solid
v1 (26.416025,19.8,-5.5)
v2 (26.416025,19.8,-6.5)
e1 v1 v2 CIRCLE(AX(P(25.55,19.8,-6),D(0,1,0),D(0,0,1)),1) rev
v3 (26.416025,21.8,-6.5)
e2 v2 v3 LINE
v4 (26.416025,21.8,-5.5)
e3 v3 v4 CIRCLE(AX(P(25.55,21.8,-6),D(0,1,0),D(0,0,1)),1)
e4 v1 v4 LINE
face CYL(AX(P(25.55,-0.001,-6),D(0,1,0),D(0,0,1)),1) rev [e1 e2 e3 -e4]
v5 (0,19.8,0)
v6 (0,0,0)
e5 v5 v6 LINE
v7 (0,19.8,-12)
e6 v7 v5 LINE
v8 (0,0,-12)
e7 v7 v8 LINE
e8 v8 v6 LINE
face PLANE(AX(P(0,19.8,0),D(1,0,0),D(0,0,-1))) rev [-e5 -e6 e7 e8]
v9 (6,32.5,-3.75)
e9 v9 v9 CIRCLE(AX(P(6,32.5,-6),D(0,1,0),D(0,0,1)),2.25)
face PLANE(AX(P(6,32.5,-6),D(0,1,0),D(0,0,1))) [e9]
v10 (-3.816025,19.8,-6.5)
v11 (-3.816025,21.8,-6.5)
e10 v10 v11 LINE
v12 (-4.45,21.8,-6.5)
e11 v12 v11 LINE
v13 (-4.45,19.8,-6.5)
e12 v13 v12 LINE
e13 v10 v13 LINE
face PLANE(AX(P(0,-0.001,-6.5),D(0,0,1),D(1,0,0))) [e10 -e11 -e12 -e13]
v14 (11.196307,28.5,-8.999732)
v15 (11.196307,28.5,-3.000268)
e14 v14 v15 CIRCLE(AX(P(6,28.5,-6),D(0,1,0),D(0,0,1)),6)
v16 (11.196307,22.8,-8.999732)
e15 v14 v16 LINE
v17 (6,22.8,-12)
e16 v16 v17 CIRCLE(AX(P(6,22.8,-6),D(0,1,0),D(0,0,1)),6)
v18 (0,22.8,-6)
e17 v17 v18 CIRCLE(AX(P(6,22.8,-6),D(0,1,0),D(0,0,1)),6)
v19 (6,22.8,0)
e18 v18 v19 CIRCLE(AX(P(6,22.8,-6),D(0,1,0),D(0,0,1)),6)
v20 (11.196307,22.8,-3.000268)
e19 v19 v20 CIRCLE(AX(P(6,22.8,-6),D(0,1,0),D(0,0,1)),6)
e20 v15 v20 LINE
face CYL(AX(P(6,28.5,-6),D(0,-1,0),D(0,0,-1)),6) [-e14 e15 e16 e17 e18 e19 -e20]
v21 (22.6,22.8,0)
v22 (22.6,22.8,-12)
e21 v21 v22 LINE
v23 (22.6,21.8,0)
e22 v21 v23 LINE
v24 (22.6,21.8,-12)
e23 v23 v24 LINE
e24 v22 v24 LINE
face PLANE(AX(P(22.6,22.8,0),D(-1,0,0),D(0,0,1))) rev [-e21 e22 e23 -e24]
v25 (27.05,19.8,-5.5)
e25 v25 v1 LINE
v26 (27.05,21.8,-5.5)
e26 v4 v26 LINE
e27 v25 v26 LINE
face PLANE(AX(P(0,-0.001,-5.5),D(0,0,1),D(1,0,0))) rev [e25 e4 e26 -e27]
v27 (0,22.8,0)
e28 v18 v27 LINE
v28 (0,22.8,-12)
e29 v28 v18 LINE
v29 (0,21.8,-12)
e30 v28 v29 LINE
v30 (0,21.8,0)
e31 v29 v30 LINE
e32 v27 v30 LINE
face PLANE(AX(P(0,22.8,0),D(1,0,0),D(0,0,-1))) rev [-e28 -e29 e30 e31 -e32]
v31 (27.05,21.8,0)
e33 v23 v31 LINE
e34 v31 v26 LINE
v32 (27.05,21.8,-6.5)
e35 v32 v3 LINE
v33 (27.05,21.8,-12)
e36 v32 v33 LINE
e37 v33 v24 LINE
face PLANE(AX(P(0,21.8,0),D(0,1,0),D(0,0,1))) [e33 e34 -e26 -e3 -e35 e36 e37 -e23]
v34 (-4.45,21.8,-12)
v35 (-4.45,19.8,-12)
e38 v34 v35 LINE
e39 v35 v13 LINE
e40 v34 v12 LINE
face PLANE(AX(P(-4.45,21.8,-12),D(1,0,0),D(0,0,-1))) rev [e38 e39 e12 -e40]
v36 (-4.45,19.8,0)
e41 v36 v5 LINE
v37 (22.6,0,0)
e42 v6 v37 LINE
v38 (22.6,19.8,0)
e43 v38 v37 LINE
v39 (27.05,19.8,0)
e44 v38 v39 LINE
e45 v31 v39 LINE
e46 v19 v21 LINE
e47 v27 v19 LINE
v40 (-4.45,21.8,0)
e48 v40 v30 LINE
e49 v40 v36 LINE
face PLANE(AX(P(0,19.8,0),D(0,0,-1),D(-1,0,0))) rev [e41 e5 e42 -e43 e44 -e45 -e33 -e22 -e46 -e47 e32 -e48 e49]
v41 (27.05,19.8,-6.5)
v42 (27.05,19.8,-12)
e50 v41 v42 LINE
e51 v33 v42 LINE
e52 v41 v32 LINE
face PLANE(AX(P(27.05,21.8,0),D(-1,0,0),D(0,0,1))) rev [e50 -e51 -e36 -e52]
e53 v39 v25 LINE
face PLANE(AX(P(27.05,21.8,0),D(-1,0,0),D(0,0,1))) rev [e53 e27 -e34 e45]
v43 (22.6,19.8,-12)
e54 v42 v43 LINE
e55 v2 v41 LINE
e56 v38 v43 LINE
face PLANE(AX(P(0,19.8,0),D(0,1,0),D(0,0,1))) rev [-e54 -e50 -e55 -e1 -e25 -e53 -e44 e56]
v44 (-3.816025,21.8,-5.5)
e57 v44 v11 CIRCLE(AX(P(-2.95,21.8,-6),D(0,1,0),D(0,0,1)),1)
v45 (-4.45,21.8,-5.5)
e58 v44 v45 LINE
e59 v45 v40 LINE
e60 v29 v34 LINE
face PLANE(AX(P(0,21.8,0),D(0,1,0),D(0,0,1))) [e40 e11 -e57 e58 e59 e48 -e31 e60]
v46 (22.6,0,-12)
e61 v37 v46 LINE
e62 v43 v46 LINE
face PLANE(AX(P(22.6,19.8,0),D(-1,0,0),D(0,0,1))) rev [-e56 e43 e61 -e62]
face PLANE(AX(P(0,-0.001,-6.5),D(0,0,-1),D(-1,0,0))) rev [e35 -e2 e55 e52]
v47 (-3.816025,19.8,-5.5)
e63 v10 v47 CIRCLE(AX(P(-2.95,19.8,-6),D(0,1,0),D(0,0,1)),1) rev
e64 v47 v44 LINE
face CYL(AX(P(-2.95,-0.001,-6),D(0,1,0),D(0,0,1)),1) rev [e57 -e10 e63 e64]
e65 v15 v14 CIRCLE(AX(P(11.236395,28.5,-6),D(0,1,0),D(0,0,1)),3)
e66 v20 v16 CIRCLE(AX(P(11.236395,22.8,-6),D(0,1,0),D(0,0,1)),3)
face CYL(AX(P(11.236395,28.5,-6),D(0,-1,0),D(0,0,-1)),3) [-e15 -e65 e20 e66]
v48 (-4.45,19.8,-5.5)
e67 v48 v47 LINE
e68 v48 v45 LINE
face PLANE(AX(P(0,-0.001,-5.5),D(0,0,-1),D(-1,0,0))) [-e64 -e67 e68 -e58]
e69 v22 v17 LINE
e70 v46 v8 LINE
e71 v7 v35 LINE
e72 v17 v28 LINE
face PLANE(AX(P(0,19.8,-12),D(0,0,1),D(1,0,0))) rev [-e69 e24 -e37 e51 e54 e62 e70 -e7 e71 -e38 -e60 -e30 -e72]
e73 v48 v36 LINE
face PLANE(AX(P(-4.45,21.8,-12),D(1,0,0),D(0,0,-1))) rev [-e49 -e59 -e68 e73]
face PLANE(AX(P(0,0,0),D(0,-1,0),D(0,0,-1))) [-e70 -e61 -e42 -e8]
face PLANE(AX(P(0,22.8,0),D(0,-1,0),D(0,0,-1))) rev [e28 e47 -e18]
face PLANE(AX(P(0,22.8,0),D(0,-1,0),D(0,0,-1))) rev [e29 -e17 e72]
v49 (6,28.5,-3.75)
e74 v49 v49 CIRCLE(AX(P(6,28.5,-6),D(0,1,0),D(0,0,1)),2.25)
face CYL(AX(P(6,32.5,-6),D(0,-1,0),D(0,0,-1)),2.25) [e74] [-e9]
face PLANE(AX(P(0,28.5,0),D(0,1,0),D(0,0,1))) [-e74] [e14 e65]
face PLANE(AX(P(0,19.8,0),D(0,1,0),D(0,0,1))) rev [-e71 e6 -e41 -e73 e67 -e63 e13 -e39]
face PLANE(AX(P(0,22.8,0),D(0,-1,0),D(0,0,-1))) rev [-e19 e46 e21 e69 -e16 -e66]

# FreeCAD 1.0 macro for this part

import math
import FreeCAD as App
import Part
import Sketcher
Q = App.Units.Quantity

doc = App.newDocument("Part")
params = doc.addObject("Spreadsheet::Sheet", "Params")
for row, (alias, value) in enumerate([
    ("sketch1_height", "12 mm"),
    ("sketch1_width", "22.6 mm"),
    ("pad1_length", "19.8 mm"),
    ("sketch2_height", "12 mm"),
    ("sketch2_width", "31.5 mm"),
    ("pad2_length", "2 mm"),
    ("sketch3_height", "12 mm"),
    ("sketch3_width", "22.6 mm"),
    ("pad3_length", "1 mm"),
    ("sketch4_radius", "6 mm"),
    ("sketch4_radius2", "3 mm"),
    ("pad4_length", "5.7 mm"),
    ("sketch5_diameter", "4.5 mm"),
    ("pad5_length", "4 mm"),
    ("sketch6_radius", "1 mm"),
    ("sketch6_width", "0.5 mm"),
    ("sketch7_radius", "1 mm"),
    ("sketch7_width", "0.5 mm"),
    ("sketch8_radius", "1 mm"),
    ("sketch8_height", "0.5 mm"),
    ("sketch9_radius", "1 mm"),
    ("sketch9_height", "0.5 mm"),
    ("sketch10_radius", "1 mm"),
    ("sketch10_height", "0.5 mm"),
    ("sketch11_radius", "1 mm"),
    ("sketch11_height", "0.5 mm"),
    ("sketch12_radius", "1 mm"),
    ("sketch12_height", "0.5 mm"),
    ("pocket7_length", "2 mm"),
    ("sketch13_radius", "1 mm"),
    ("sketch13_height", "0.5 mm"),
    ("pocket8_length", "2 mm"),
    ("sketch14_radius", "1 mm"),
    ("sketch14_height", "0.5 mm"),
    ("pocket9_length", "2 mm"),
    ("sketch15_radius", "1 mm"),
    ("sketch15_height", "0.5 mm"),
    ("pocket10_length", "2 mm"),
    ("sketch16_radius", "1 mm"),
    ("sketch16_height", "0.5 mm"),
    ("sketch17_radius", "1 mm"),
    ("sketch17_height", "0.5 mm"),
    ("sketch18_radius", "1 mm"),
    ("sketch18_height", "0.5 mm"),
    ("pocket13_length", "2 mm"),
    ("sketch19_radius", "1 mm"),
    ("sketch19_height", "0.5 mm"),
    ("pocket14_length", "2 mm"),
    ("sketch20_radius", "1 mm"),
    ("sketch20_height", "0.5 mm"),
    ("sketch21_radius", "1 mm"),
    ("sketch21_height", "0.5 mm"),
    ("sketch22_radius", "1 mm"),
    ("sketch22_height", "0.5 mm"),
    ("pocket17_length", "2 mm"),
    ("sketch23_radius", "1 mm"),
    ("sketch23_height", "0.5 mm"),
    ("pocket18_length", "2 mm"),
    ("sketch24_radius", "1 mm"),
    ("sketch24_width", "0.5 mm"),
    ("sketch25_radius", "1 mm"),
    ("sketch25_width", "0.5 mm"),
], start=1):
    params.set(f"A{row}", alias)
    params.set(f"B{row}", "=" + value)
    params.setAlias(f"B{row}", alias)

body = doc.addObject("PartDesign::Body", "Body")
body.AllowCompound = True

# Sketch on XZ plane
sketch1 = body.newObject("Sketcher::SketchObject", "Sketch")
sketch1.AttachmentSupport = (doc.getObject("XZ_Plane"), [""])
sketch1.MapMode = "FlatFace"
sketch1.addGeometry(Part.LineSegment(App.Vector(0, -12, 0), App.Vector(0, 0, 0)), False)
sketch1.addGeometry(Part.LineSegment(App.Vector(0, 0, 0), App.Vector(23, 0, 0)), False)
sketch1.addGeometry(Part.LineSegment(App.Vector(23, 0, 0), App.Vector(23, -12, 0)), False)
sketch1.addGeometry(Part.LineSegment(App.Vector(23, -12, 0), App.Vector(0, -12, 0)), False)
sketch1.addConstraint(Sketcher.Constraint("Coincident", 0, 2, 1, 1))
sketch1.addConstraint(Sketcher.Constraint("Coincident", 1, 2, 2, 1))
sketch1.addConstraint(Sketcher.Constraint("Coincident", 2, 2, 3, 1))
sketch1.addConstraint(Sketcher.Constraint("Coincident", 3, 2, 0, 1))
sketch1.addConstraint(Sketcher.Constraint("Vertical", 0))
sketch1.addConstraint(Sketcher.Constraint("Horizontal", 1))
sketch1.addConstraint(Sketcher.Constraint("Vertical", 2))
sketch1.addConstraint(Sketcher.Constraint("Horizontal", 3))
sketch1.addConstraint(Sketcher.Constraint("Coincident", 0, 2, -1, 1))
sketch1.addConstraint(Sketcher.Constraint("DistanceY", 0, 1, 0, 2, Q("12 mm")))
sketch1.addConstraint(Sketcher.Constraint("DistanceX", 1, 1, 1, 2, Q("22.6 mm")))
sketch1.setExpression("Constraints[9]", "Params.sketch1_height")
sketch1.setExpression("Constraints[10]", "Params.sketch1_width")
pad1 = body.newObject("PartDesign::Pad", "Pad")
pad1.Profile = sketch1
pad1.setExpression("Length", "Params.pad1_length")
pad1.Reversed = True

# Sketch on XZ plane
sketch2 = body.newObject("Sketcher::SketchObject", "Sketch001")
sketch2.AttachmentSupport = (doc.getObject("XZ_Plane"), [""])
sketch2.MapMode = "FlatFace"
sketch2.AttachmentOffset = App.Placement(App.Vector(0, 0, -19.8), App.Rotation())
sketch2.addGeometry(Part.LineSegment(App.Vector(-4, -12, 0), App.Vector(-4, 0, 0)), False)
sketch2.addGeometry(Part.LineSegment(App.Vector(-4, 0, 0), App.Vector(27, 0, 0)), False)
sketch2.addGeometry(Part.LineSegment(App.Vector(27, 0, 0), App.Vector(27, -12, 0)), False)
sketch2.addGeometry(Part.LineSegment(App.Vector(27, -12, 0), App.Vector(-4, -12, 0)), False)
sketch2.addConstraint(Sketcher.Constraint("Coincident", 0, 2, 1, 1))
sketch2.addConstraint(Sketcher.Constraint("Coincident", 1, 2, 2, 1))
sketch2.addConstraint(Sketcher.Constraint("Coincident", 2, 2, 3, 1))
sketch2.addConstraint(Sketcher.Constraint("Coincident", 3, 2, 0, 1))
sketch2.addConstraint(Sketcher.Constraint("Vertical", 0))
sketch2.addConstraint(Sketcher.Constraint("Horizontal", 1))
sketch2.addConstraint(Sketcher.Constraint("Vertical", 2))
sketch2.addConstraint(Sketcher.Constraint("Horizontal", 3))
sketch2.addConstraint(Sketcher.Constraint("PointOnObject", 0, 2, -1))
sketch2.addConstraint(Sketcher.Constraint("DistanceY", 0, 1, 0, 2, Q("12 mm")))
sketch2.addConstraint(Sketcher.Constraint("DistanceX", 1, 1, 1, 2, Q("31.5 mm")))
sketch2.addConstraint(Sketcher.Constraint("DistanceX", 0, 2, -1, 1, Q("4.45 mm")))
sketch2.setExpression("Constraints[9]", "Params.sketch2_height")
sketch2.setExpression("Constraints[10]", "Params.sketch2_width")
pad2 = body.newObject("PartDesign::Pad", "Pad001")
pad2.Profile = sketch2
pad2.setExpression("Length", "Params.pad2_length")
pad2.Reversed = True

# Sketch on XZ plane
sketch3 = body.newObject("Sketcher::SketchObject", "Sketch002")
sketch3.AttachmentSupport = (doc.getObject("XZ_Plane"), [""])
sketch3.MapMode = "FlatFace"
sketch3.AttachmentOffset = App.Placement(App.Vector(0, 0, -21.8), App.Rotation())
sketch3.addGeometry(Part.LineSegment(App.Vector(0, -12, 0), App.Vector(0, 0, 0)), False)
sketch3.addGeometry(Part.LineSegment(App.Vector(0, 0, 0), App.Vector(23, 0, 0)), False)
sketch3.addGeometry(Part.LineSegment(App.Vector(23, 0, 0), App.Vector(23, -12, 0)), False)
sketch3.addGeometry(Part.LineSegment(App.Vector(23, -12, 0), App.Vector(0, -12, 0)), False)
sketch3.addConstraint(Sketcher.Constraint("Coincident", 0, 2, 1, 1))
sketch3.addConstraint(Sketcher.Constraint("Coincident", 1, 2, 2, 1))
sketch3.addConstraint(Sketcher.Constraint("Coincident", 2, 2, 3, 1))
sketch3.addConstraint(Sketcher.Constraint("Coincident", 3, 2, 0, 1))
sketch3.addConstraint(Sketcher.Constraint("Vertical", 0))
sketch3.addConstraint(Sketcher.Constraint("Horizontal", 1))
sketch3.addConstraint(Sketcher.Constraint("Vertical", 2))
sketch3.addConstraint(Sketcher.Constraint("Horizontal", 3))
sketch3.addConstraint(Sketcher.Constraint("Coincident", 0, 2, -1, 1))
sketch3.addConstraint(Sketcher.Constraint("DistanceY", 0, 1, 0, 2, Q("12 mm")))
sketch3.addConstraint(Sketcher.Constraint("DistanceX", 1, 1, 1, 2, Q("22.6 mm")))
sketch3.setExpression("Constraints[9]", "Params.sketch3_height")
sketch3.setExpression("Constraints[10]", "Params.sketch3_width")
pad3 = body.newObject("PartDesign::Pad", "Pad002")
pad3.Profile = sketch3
pad3.setExpression("Length", "Params.pad3_length")
pad3.Reversed = True

# Sketch on XZ plane
sketch4 = body.newObject("Sketcher::SketchObject", "Sketch003")
sketch4.AttachmentSupport = (doc.getObject("XZ_Plane"), [""])
sketch4.MapMode = "FlatFace"
sketch4.AttachmentOffset = App.Placement(App.Vector(0, 0, -22.8), App.Rotation())
sketch4.addGeometry(Part.ArcOfCircle(Part.Circle(App.Vector(6, -6, 0), App.Vector(0, 0, 1), 6), math.radians(30), math.radians(330)), False)
sketch4.addGeometry(Part.ArcOfCircle(Part.Circle(App.Vector(11.2, -6, 0), App.Vector(0, 0, 1), 3), math.radians(-91), math.radians(91)), False)
sketch4.addConstraint(Sketcher.Constraint("Coincident", 0, 1, 1, 2))
sketch4.addConstraint(Sketcher.Constraint("Coincident", 1, 1, 0, 2))
sketch4.addConstraint(Sketcher.Constraint("Horizontal", 0, 3, 1, 3))
sketch4.addConstraint(Sketcher.Constraint("Radius", 0, Q("6 mm")))
sketch4.addConstraint(Sketcher.Constraint("Radius", 1, Q("3 mm")))
sketch4.addConstraint(Sketcher.Constraint("DistanceX", -1, 1, 0, 3, Q("6 mm")))
sketch4.addConstraint(Sketcher.Constraint("DistanceY", 0, 3, -1, 1, Q("6 mm")))
sketch4.addConstraint(Sketcher.Constraint("DistanceX", 0, 1, 1, 3, Q("0.040088 mm")))
sketch4.setExpression("Constraints[3]", "Params.sketch4_radius")
sketch4.setExpression("Constraints[4]", "Params.sketch4_radius2")
pad4 = body.newObject("PartDesign::Pad", "Pad003")
pad4.Profile = sketch4
pad4.setExpression("Length", "Params.pad4_length")
pad4.Reversed = True

# Sketch on XZ plane
sketch5 = body.newObject("Sketcher::SketchObject", "Sketch004")
sketch5.AttachmentSupport = (doc.getObject("XZ_Plane"), [""])
sketch5.MapMode = "FlatFace"
sketch5.AttachmentOffset = App.Placement(App.Vector(0, 0, -28.5), App.Rotation())
sketch5.addGeometry(Part.Circle(App.Vector(6, -6, 0), App.Vector(0, 0, 1), 2.2), False)
sketch5.addConstraint(Sketcher.Constraint("Diameter", 0, Q("4.5 mm")))
sketch5.addConstraint(Sketcher.Constraint("DistanceX", -1, 1, 0, 3, Q("6 mm")))
sketch5.addConstraint(Sketcher.Constraint("DistanceY", 0, 3, -1, 1, Q("6 mm")))
sketch5.setExpression("Constraints[0]", "Params.sketch5_diameter")
pad5 = body.newObject("PartDesign::Pad", "Pad004")
pad5.Profile = sketch5
pad5.setExpression("Length", "Params.pad5_length")
pad5.Reversed = True

# Sketch on XZ plane
sketch6 = body.newObject("Sketcher::SketchObject", "Sketch005")
sketch6.AttachmentSupport = (doc.getObject("XZ_Plane"), [""])
sketch6.MapMode = "FlatFace"
sketch6.AttachmentOffset = App.Placement(App.Vector(0, 0, -21.8), App.Rotation())
sketch6.addGeometry(Part.LineSegment(App.Vector(-4.5, -5.5, 0), App.Vector(-3.8, -5.5, 0)), False)
sketch6.addGeometry(Part.ArcOfCircle(Part.Circle(App.Vector(-2.9, -6, 0), App.Vector(0, 0, 1), 1), math.radians(150), math.radians(180)), False)
sketch6.addGeometry(Part.LineSegment(App.Vector(-4, -6, 0), App.Vector(-4.5, -6, 0)), False)
sketch6.addGeometry(Part.LineSegment(App.Vector(-4.5, -6, 0), App.Vector(-4.5, -5.5, 0)), False)
sketch6.addConstraint(Sketcher.Constraint("Coincident", 0, 2, 1, 1))
sketch6.addConstraint(Sketcher.Constraint("Coincident", 1, 2, 2, 1))
sketch6.addConstraint(Sketcher.Constraint("Coincident", 2, 2, 3, 1))
sketch6.addConstraint(Sketcher.Constraint("Coincident", 3, 2, 0, 1))
sketch6.addConstraint(Sketcher.Constraint("Horizontal", 0))
sketch6.addConstraint(Sketcher.Constraint("Horizontal", 2))
sketch6.addConstraint(Sketcher.Constraint("Vertical", 3))
sketch6.addConstraint(Sketcher.Constraint("Equal", 2, 3))
sketch6.addConstraint(Sketcher.Constraint("Radius", 1, Q("1 mm")))
sketch6.addConstraint(Sketcher.Constraint("DistanceX", 2, 2, 2, 1, Q("0.5 mm")))
sketch6.addConstraint(Sketcher.Constraint("DistanceY", 1, 3, -1, 1, Q("6 mm")))
sketch6.addConstraint(Sketcher.Constraint("DistanceY", 1, 2, -1, 1, Q("6 mm")))
sketch6.addConstraint(Sketcher.Constraint("DistanceX", 1, 3, -1, 1, Q("2.95 mm")))
sketch6.setExpression("Constraints[8]", "Params.sketch6_radius")
sketch6.setExpression("Constraints[9]", "Params.sketch6_width")
pocket1 = body.newObject("PartDesign::Pocket", "Pocket")
pocket1.Profile = sketch6
pocket1.Type = "UpToFirst"
pocket1.Reversed = True

# Sketch on XZ plane
sketch7 = body.newObject("Sketcher::SketchObject", "Sketch006")
sketch7.AttachmentSupport = (doc.getObject("XZ_Plane"), [""])
sketch7.MapMode = "FlatFace"
sketch7.AttachmentOffset = App.Placement(App.Vector(0, 0, -21.8), App.Rotation())
sketch7.addGeometry(Part.ArcOfCircle(Part.Circle(App.Vector(-2.9, -6, 0), App.Vector(0, 0, 1), 1), math.radians(-180), math.radians(-150)), False)
sketch7.addGeometry(Part.LineSegment(App.Vector(-3.8, -6.5, 0), App.Vector(-4.5, -6.5, 0)), False)
sketch7.addGeometry(Part.LineSegment(App.Vector(-4.5, -6.5, 0), App.Vector(-4.5, -6, 0)), False)
sketch7.addGeometry(Part.LineSegment(App.Vector(-4.5, -6, 0), App.Vector(-4, -6, 0)), False)
sketch7.addConstraint(Sketcher.Constraint("Coincident", 0, 2, 1, 1))
sketch7.addConstraint(Sketcher.Constraint("Coincident", 1, 2, 2, 1))
sketch7.addConstraint(Sketcher.Constraint("Coincident", 2, 2, 3, 1))
sketch7.addConstraint(Sketcher.Constraint("Coincident", 3, 2, 0, 1))
sketch7.addConstraint(Sketcher.Constraint("Horizontal", 1))
sketch7.addConstraint(Sketcher.Constraint("Vertical", 2))
sketch7.addConstraint(Sketcher.Constraint("Horizontal", 3))
sketch7.addConstraint(Sketcher.Constraint("Horizontal", 0, 3, 2, 2))
sketch7.addConstraint(Sketcher.Constraint("Equal", 3, 2))
sketch7.addConstraint(Sketcher.Constraint("Radius", 0, Q("1 mm")))
sketch7.addConstraint(Sketcher.Constraint("DistanceX", 3, 1, 3, 2, Q("0.5 mm")))
sketch7.addConstraint(Sketcher.Constraint("DistanceY", 0, 3, -1, 1, Q("6 mm")))
sketch7.addConstraint(Sketcher.Constraint("DistanceX", 0, 3, -1, 1, Q("2.95 mm")))
sketch7.setExpression("Constraints[9]", "Params.sketch7_radius")
sketch7.setExpression("Constraints[10]", "Params.sketch7_width")
pocket2 = body.newObject("PartDesign::Pocket", "Pocket001")
pocket2.Profile = sketch7
pocket2.Type = "UpToFirst"
pocket2.Reversed = True

# Sketch on XZ plane
sketch8 = body.newObject("Sketcher::SketchObject", "Sketch007")
sketch8.AttachmentSupport = (doc.getObject("XZ_Plane"), [""])
sketch8.MapMode = "FlatFace"
sketch8.AttachmentOffset = App.Placement(App.Vector(0, 0, -21.8), App.Rotation())
sketch8.addGeometry(Part.ArcOfCircle(Part.Circle(App.Vector(-2.95, -6, 0), App.Vector(0, 0, 1), 1), math.radians(0), math.radians(150)), False)
sketch8.addGeometry(Part.LineSegment(App.Vector(-1.95, -6, 0), App.Vector(-2.45, -6, 0)), False)
sketch8.addGeometry(Part.LineSegment(App.Vector(-2.45, -6, 0), App.Vector(-2.45, -5.5, 0)), False)
sketch8.addGeometry(Part.LineSegment(App.Vector(-2.45, -5.5, 0), App.Vector(-3.82, -5.5, 0)), False)
sketch8.addConstraint(Sketcher.Constraint("Coincident", 0, 1, 1, 1))
sketch8.addConstraint(Sketcher.Constraint("Coincident", 1, 2, 2, 1))
sketch8.addConstraint(Sketcher.Constraint("Coincident", 2, 2, 3, 1))
sketch8.addConstraint(Sketcher.Constraint("Coincident", 3, 2, 0, 2))
sketch8.addConstraint(Sketcher.Constraint("Horizontal", 1))
sketch8.addConstraint(Sketcher.Constraint("Vertical", 2))
sketch8.addConstraint(Sketcher.Constraint("Horizontal", 3))
sketch8.addConstraint(Sketcher.Constraint("Radius", 0, Q("1 mm")))
sketch8.addConstraint(Sketcher.Constraint("DistanceY", 2, 1, 2, 2, Q("0.5 mm")))
sketch8.addConstraint(Sketcher.Constraint("DistanceY", 0, 3, -1, 1, Q("6 mm")))
sketch8.addConstraint(Sketcher.Constraint("DistanceY", 0, 1, -1, 1, Q("6 mm")))
sketch8.addConstraint(Sketcher.Constraint("DistanceX", 0, 3, -1, 1, Q("2.95 mm")))
sketch8.addConstraint(Sketcher.Constraint("DistanceX", 1, 2, 1, 1, Q("0.499082 mm")))
sketch8.setExpression("Constraints[7]", "Params.sketch8_radius")
sketch8.setExpression("Constraints[8]", "Params.sketch8_height")
pocket3 = body.newObject("PartDesign::Pocket", "Pocket002")
pocket3.Profile = sketch8
pocket3.Type = "UpToFirst"
pocket3.Reversed = True

# Sketch on XZ plane
sketch9 = body.newObject("Sketcher::SketchObject", "Sketch008")
sketch9.AttachmentSupport = (doc.getObject("XZ_Plane"), [""])
sketch9.MapMode = "FlatFace"
sketch9.AttachmentOffset = App.Placement(App.Vector(0, 0, -21.8), App.Rotation())
sketch9.addGeometry(Part.LineSegment(App.Vector(-2.4, -5.5, 0), App.Vector(-2.4, -6, 0)), False)
sketch9.addGeometry(Part.LineSegment(App.Vector(-2.4, -6, 0), App.Vector(-4, -6, 0)), False)
sketch9.addGeometry(Part.ArcOfCircle(Part.Circle(App.Vector(-2.9, -6, 0), App.Vector(0, 0, 1), 1), math.radians(150), math.radians(180)), False)
sketch9.addGeometry(Part.LineSegment(App.Vector(-3.8, -5.5, 0), App.Vector(-2.4, -5.5, 0)), False)
sketch9.addConstraint(Sketcher.Constraint("Coincident", 0, 2, 1, 1))
sketch9.addConstraint(Sketcher.Constraint("Coincident", 1, 2, 2, 2))
sketch9.addConstraint(Sketcher.Constraint("Coincident", 2, 1, 3, 1))
sketch9.addConstraint(Sketcher.Constraint("Coincident", 3, 2, 0, 1))
sketch9.addConstraint(Sketcher.Constraint("Vertical", 0))
sketch9.addConstraint(Sketcher.Constraint("Horizontal", 1))
sketch9.addConstraint(Sketcher.Constraint("Horizontal", 3))
sketch9.addConstraint(Sketcher.Constraint("Horizontal", 2, 3, 0, 2))
sketch9.addConstraint(Sketcher.Constraint("Radius", 2, Q("1 mm")))
sketch9.addConstraint(Sketcher.Constraint("DistanceY", 0, 2, 0, 1, Q("0.5 mm")))
sketch9.addConstraint(Sketcher.Constraint("DistanceY", 2, 3, -1, 1, Q("6 mm")))
sketch9.addConstraint(Sketcher.Constraint("DistanceX", 2, 3, -1, 1, Q("2.95 mm")))
sketch9.addConstraint(Sketcher.Constraint("DistanceX", 1, 2, 1, 1, Q("1.500918 mm")))
sketch9.setExpression("Constraints[8]", "Params.sketch9_radius")
sketch9.setExpression("Constraints[9]", "Params.sketch9_height")
pocket4 = body.newObject("PartDesign::Pocket", "Pocket003")
pocket4.Profile = sketch9
pocket4.Type = "UpToFirst"
pocket4.Reversed = True

# Sketch on XZ plane
sketch10 = body.newObject("Sketcher::SketchObject", "Sketch009")
sketch10.AttachmentSupport = (doc.getObject("XZ_Plane"), [""])
sketch10.MapMode = "FlatFace"
sketch10.AttachmentOffset = App.Placement(App.Vector(0, 0, -21.8), App.Rotation())
sketch10.addGeometry(Part.LineSegment(App.Vector(-2.45, -6, 0), App.Vector(-1.95, -6, 0)), False)
sketch10.addGeometry(Part.ArcOfCircle(Part.Circle(App.Vector(-2.95, -6, 0), App.Vector(0, 0, 1), 1), math.radians(-150), math.radians(0)), False)
sketch10.addGeometry(Part.LineSegment(App.Vector(-3.82, -6.5, 0), App.Vector(-2.45, -6.5, 0)), False)
sketch10.addGeometry(Part.LineSegment(App.Vector(-2.45, -6.5, 0), App.Vector(-2.45, -6, 0)), False)
sketch10.addConstraint(Sketcher.Constraint("Coincident", 0, 2, 1, 2))
sketch10.addConstraint(Sketcher.Constraint("Coincident", 1, 1, 2, 1))
sketch10.addConstraint(Sketcher.Constraint("Coincident", 2, 2, 3, 1))
sketch10.addConstraint(Sketcher.Constraint("Coincident", 3, 2, 0, 1))
sketch10.addConstraint(Sketcher.Constraint("Horizontal", 0))
sketch10.addConstraint(Sketcher.Constraint("Horizontal", 2))
sketch10.addConstraint(Sketcher.Constraint("Vertical", 3))
sketch10.addConstraint(Sketcher.Constraint("Horizontal", 1, 3, 0, 2))
sketch10.addConstraint(Sketcher.Constraint("Radius", 1, Q("1 mm")))
sketch10.addConstraint(Sketcher.Constraint("DistanceY", 3, 1, 3, 2, Q("0.5 mm")))
sketch10.addConstraint(Sketcher.Constraint("DistanceY", 1, 3, -1, 1, Q("6 mm")))
sketch10.addConstraint(Sketcher.Constraint("DistanceX", 1, 3, -1, 1, Q("2.95 mm")))
sketch10.addConstraint(Sketcher.Constraint("DistanceX", 0, 1, 0, 2, Q("0.499082 mm")))
sketch10.setExpression("Constraints[8]", "Params.sketch10_radius")
sketch10.setExpression("Constraints[9]", "Params.sketch10_height")
pocket5 = body.newObject("PartDesign::Pocket", "Pocket004")
pocket5.Profile = sketch10
pocket5.Type = "UpToFirst"
pocket5.Reversed = True

# Sketch on XZ plane
sketch11 = body.newObject("Sketcher::SketchObject", "Sketch010")
sketch11.AttachmentSupport = (doc.getObject("XZ_Plane"), [""])
sketch11.MapMode = "FlatFace"
sketch11.AttachmentOffset = App.Placement(App.Vector(0, 0, -21.8), App.Rotation())
sketch11.addGeometry(Part.LineSegment(App.Vector(-4, -6, 0), App.Vector(-2.4, -6, 0)), False)
sketch11.addGeometry(Part.LineSegment(App.Vector(-2.4, -6, 0), App.Vector(-2.4, -6.5, 0)), False)
sketch11.addGeometry(Part.LineSegment(App.Vector(-2.4, -6.5, 0), App.Vector(-3.8, -6.5, 0)), False)
sketch11.addGeometry(Part.ArcOfCircle(Part.Circle(App.Vector(-2.9, -6, 0), App.Vector(0, 0, 1), 1), math.radians(-180), math.radians(-150)), False)
sketch11.addConstraint(Sketcher.Constraint("Coincident", 0, 2, 1, 1))
sketch11.addConstraint(Sketcher.Constraint("Coincident", 1, 2, 2, 1))
sketch11.addConstraint(Sketcher.Constraint("Coincident", 2, 2, 3, 2))
sketch11.addConstraint(Sketcher.Constraint("Coincident", 3, 1, 0, 1))
sketch11.addConstraint(Sketcher.Constraint("Horizontal", 0))
sketch11.addConstraint(Sketcher.Constraint("Vertical", 1))
sketch11.addConstraint(Sketcher.Constraint("Horizontal", 2))
sketch11.addConstraint(Sketcher.Constraint("Horizontal", 3, 3, 0, 2))
sketch11.addConstraint(Sketcher.Constraint("Radius", 3, Q("1 mm")))
sketch11.addConstraint(Sketcher.Constraint("DistanceY", 1, 2, 1, 1, Q("0.5 mm")))
sketch11.addConstraint(Sketcher.Constraint("DistanceY", 3, 3, -1, 1, Q("6 mm")))
sketch11.addConstraint(Sketcher.Constraint("DistanceX", 3, 3, -1, 1, Q("2.95 mm")))
sketch11.addConstraint(Sketcher.Constraint("DistanceX", 0, 1, 0, 2, Q("1.500918 mm")))
sketch11.setExpression("Constraints[8]", "Params.sketch11_radius")
sketch11.setExpression("Constraints[9]", "Params.sketch11_height")
pocket6 = body.newObject("PartDesign::Pocket", "Pocket005")
pocket6.Profile = sketch11
pocket6.Type = "UpToFirst"
pocket6.Reversed = True

# Sketch on XZ plane
sketch12 = body.newObject("Sketcher::SketchObject", "Sketch011")
sketch12.AttachmentSupport = (doc.getObject("XZ_Plane"), [""])
sketch12.MapMode = "FlatFace"
sketch12.AttachmentOffset = App.Placement(App.Vector(0, 0, -21.8), App.Rotation())
sketch12.addGeometry(Part.ArcOfCircle(Part.Circle(App.Vector(-2.95, -6, 0), App.Vector(0, 0, 1), 1), math.radians(0), math.radians(150)), False)
sketch12.addGeometry(Part.LineSegment(App.Vector(-1.95, -6, 0), App.Vector(-2.45, -6, 0)), False)
sketch12.addGeometry(Part.LineSegment(App.Vector(-2.45, -6, 0), App.Vector(-2.45, -5.5, 0)), False)
sketch12.addGeometry(Part.LineSegment(App.Vector(-2.45, -5.5, 0), App.Vector(-3.82, -5.5, 0)), False)
sketch12.addConstraint(Sketcher.Constraint("Coincident", 0, 1, 1, 1))
sketch12.addConstraint(Sketcher.Constraint("Coincident", 1, 2, 2, 1))
sketch12.addConstraint(Sketcher.Constraint("Coincident", 2, 2, 3, 1))
sketch12.addConstraint(Sketcher.Constraint("Coincident", 3, 2, 0, 2))
sketch12.addConstraint(Sketcher.Constraint("Horizontal", 1))
sketch12.addConstraint(Sketcher.Constraint("Vertical", 2))
sketch12.addConstraint(Sketcher.Constraint("Horizontal", 3))
sketch12.addConstraint(Sketcher.Constraint("Radius", 0, Q("1 mm")))
sketch12.addConstraint(Sketcher.Constraint("DistanceY", 2, 1, 2, 2, Q("0.5 mm")))
sketch12.addConstraint(Sketcher.Constraint("DistanceY", 0, 3, -1, 1, Q("6 mm")))
sketch12.addConstraint(Sketcher.Constraint("DistanceY", 0, 1, -1, 1, Q("6 mm")))
sketch12.addConstraint(Sketcher.Constraint("DistanceX", 0, 3, -1, 1, Q("2.95 mm")))
sketch12.addConstraint(Sketcher.Constraint("DistanceX", 1, 2, 1, 1, Q("0.499082 mm")))
sketch12.setExpression("Constraints[7]", "Params.sketch12_radius")
sketch12.setExpression("Constraints[8]", "Params.sketch12_height")
pocket7 = body.newObject("PartDesign::Pocket", "Pocket006")
pocket7.Profile = sketch12
pocket7.setExpression("Length", "Params.pocket7_length")
pocket7.Reversed = True

# Sketch on XZ plane
sketch13 = body.newObject("Sketcher::SketchObject", "Sketch012")
sketch13.AttachmentSupport = (doc.getObject("XZ_Plane"), [""])
sketch13.MapMode = "FlatFace"
sketch13.AttachmentOffset = App.Placement(App.Vector(0, 0, -21.8), App.Rotation())
sketch13.addGeometry(Part.LineSegment(App.Vector(-2.4, -5.5, 0), App.Vector(-2.4, -6, 0)), False)
sketch13.addGeometry(Part.LineSegment(App.Vector(-2.4, -6, 0), App.Vector(-4, -6, 0)), False)
sketch13.addGeometry(Part.ArcOfCircle(Part.Circle(App.Vector(-2.9, -6, 0), App.Vector(0, 0, 1), 1), math.radians(150), math.radians(180)), False)
sketch13.addGeometry(Part.LineSegment(App.Vector(-3.8, -5.5, 0), App.Vector(-2.4, -5.5, 0)), False)
sketch13.addConstraint(Sketcher.Constraint("Coincident", 0, 2, 1, 1))
sketch13.addConstraint(Sketcher.Constraint("Coincident", 1, 2, 2, 2))
sketch13.addConstraint(Sketcher.Constraint("Coincident", 2, 1, 3, 1))
sketch13.addConstraint(Sketcher.Constraint("Coincident", 3, 2, 0, 1))
sketch13.addConstraint(Sketcher.Constraint("Vertical", 0))
sketch13.addConstraint(Sketcher.Constraint("Horizontal", 1))
sketch13.addConstraint(Sketcher.Constraint("Horizontal", 3))
sketch13.addConstraint(Sketcher.Constraint("Horizontal", 2, 3, 0, 2))
sketch13.addConstraint(Sketcher.Constraint("Radius", 2, Q("1 mm")))
sketch13.addConstraint(Sketcher.Constraint("DistanceY", 0, 2, 0, 1, Q("0.5 mm")))
sketch13.addConstraint(Sketcher.Constraint("DistanceY", 2, 3, -1, 1, Q("6 mm")))
sketch13.addConstraint(Sketcher.Constraint("DistanceX", 2, 3, -1, 1, Q("2.95 mm")))
sketch13.addConstraint(Sketcher.Constraint("DistanceX", 1, 2, 1, 1, Q("1.500918 mm")))
sketch13.setExpression("Constraints[8]", "Params.sketch13_radius")
sketch13.setExpression("Constraints[9]", "Params.sketch13_height")
pocket8 = body.newObject("PartDesign::Pocket", "Pocket007")
pocket8.Profile = sketch13
pocket8.setExpression("Length", "Params.pocket8_length")
pocket8.Reversed = True

# Sketch on XZ plane
sketch14 = body.newObject("Sketcher::SketchObject", "Sketch013")
sketch14.AttachmentSupport = (doc.getObject("XZ_Plane"), [""])
sketch14.MapMode = "FlatFace"
sketch14.AttachmentOffset = App.Placement(App.Vector(0, 0, -21.8), App.Rotation())
sketch14.addGeometry(Part.LineSegment(App.Vector(-2.45, -6, 0), App.Vector(-1.95, -6, 0)), False)
sketch14.addGeometry(Part.ArcOfCircle(Part.Circle(App.Vector(-2.95, -6, 0), App.Vector(0, 0, 1), 1), math.radians(-150), math.radians(0)), False)
sketch14.addGeometry(Part.LineSegment(App.Vector(-3.82, -6.5, 0), App.Vector(-2.45, -6.5, 0)), False)
sketch14.addGeometry(Part.LineSegment(App.Vector(-2.45, -6.5, 0), App.Vector(-2.45, -6, 0)), False)
sketch14.addConstraint(Sketcher.Constraint("Coincident", 0, 2, 1, 2))
sketch14.addConstraint(Sketcher.Constraint("Coincident", 1, 1, 2, 1))
sketch14.addConstraint(Sketcher.Constraint("Coincident", 2, 2, 3, 1))
sketch14.addConstraint(Sketcher.Constraint("Coincident", 3, 2, 0, 1))
sketch14.addConstraint(Sketcher.Constraint("Horizontal", 0))
sketch14.addConstraint(Sketcher.Constraint("Horizontal", 2))
sketch14.addConstraint(Sketcher.Constraint("Vertical", 3))
sketch14.addConstraint(Sketcher.Constraint("Horizontal", 1, 3, 0, 2))
sketch14.addConstraint(Sketcher.Constraint("Radius", 1, Q("1 mm")))
sketch14.addConstraint(Sketcher.Constraint("DistanceY", 3, 1, 3, 2, Q("0.5 mm")))
sketch14.addConstraint(Sketcher.Constraint("DistanceY", 1, 3, -1, 1, Q("6 mm")))
sketch14.addConstraint(Sketcher.Constraint("DistanceX", 1, 3, -1, 1, Q("2.95 mm")))
sketch14.addConstraint(Sketcher.Constraint("DistanceX", 0, 1, 0, 2, Q("0.499082 mm")))
sketch14.setExpression("Constraints[8]", "Params.sketch14_radius")
sketch14.setExpression("Constraints[9]", "Params.sketch14_height")
pocket9 = body.newObject("PartDesign::Pocket", "Pocket008")
pocket9.Profile = sketch14
pocket9.setExpression("Length", "Params.pocket9_length")
pocket9.Reversed = True

# Sketch on XZ plane
sketch15 = body.newObject("Sketcher::SketchObject", "Sketch014")
sketch15.AttachmentSupport = (doc.getObject("XZ_Plane"), [""])
sketch15.MapMode = "FlatFace"
sketch15.AttachmentOffset = App.Placement(App.Vector(0, 0, -21.8), App.Rotation())
sketch15.addGeometry(Part.LineSegment(App.Vector(-4, -6, 0), App.Vector(-2.4, -6, 0)), False)
sketch15.addGeometry(Part.LineSegment(App.Vector(-2.4, -6, 0), App.Vector(-2.4, -6.5, 0)), False)
sketch15.addGeometry(Part.LineSegment(App.Vector(-2.4, -6.5, 0), App.Vector(-3.8, -6.5, 0)), False)
sketch15.addGeometry(Part.ArcOfCircle(Part.Circle(App.Vector(-2.9, -6, 0), App.Vector(0, 0, 1), 1), math.radians(-180), math.radians(-150)), False)
sketch15.addConstraint(Sketcher.Constraint("Coincident", 0, 2, 1, 1))
sketch15.addConstraint(Sketcher.Constraint("Coincident", 1, 2, 2, 1))
sketch15.addConstraint(Sketcher.Constraint("Coincident", 2, 2, 3, 2))
sketch15.addConstraint(Sketcher.Constraint("Coincident", 3, 1, 0, 1))
sketch15.addConstraint(Sketcher.Constraint("Horizontal", 0))
sketch15.addConstraint(Sketcher.Constraint("Vertical", 1))
sketch15.addConstraint(Sketcher.Constraint("Horizontal", 2))
sketch15.addConstraint(Sketcher.Constraint("Horizontal", 3, 3, 0, 2))
sketch15.addConstraint(Sketcher.Constraint("Radius", 3, Q("1 mm")))
sketch15.addConstraint(Sketcher.Constraint("DistanceY", 1, 2, 1, 1, Q("0.5 mm")))
sketch15.addConstraint(Sketcher.Constraint("DistanceY", 3, 3, -1, 1, Q("6 mm")))
sketch15.addConstraint(Sketcher.Constraint("DistanceX", 3, 3, -1, 1, Q("2.95 mm")))
sketch15.addConstraint(Sketcher.Constraint("DistanceX", 0, 1, 0, 2, Q("1.500918 mm")))
sketch15.setExpression("Constraints[8]", "Params.sketch15_radius")
sketch15.setExpression("Constraints[9]", "Params.sketch15_height")
pocket10 = body.newObject("PartDesign::Pocket", "Pocket009")
pocket10.Profile = sketch15
pocket10.setExpression("Length", "Params.pocket10_length")
pocket10.Reversed = True

# Sketch on XZ plane
sketch16 = body.newObject("Sketcher::SketchObject", "Sketch015")
sketch16.AttachmentSupport = (doc.getObject("XZ_Plane"), [""])
sketch16.MapMode = "FlatFace"
sketch16.AttachmentOffset = App.Placement(App.Vector(0, 0, -21.8), App.Rotation())
sketch16.addGeometry(Part.ArcOfCircle(Part.Circle(App.Vector(25.5, -6, 0), App.Vector(0, 0, 1), 1), math.radians(0), math.radians(30)), False)
sketch16.addGeometry(Part.LineSegment(App.Vector(26.6, -6, 0), App.Vector(25, -6, 0)), False)
sketch16.addGeometry(Part.LineSegment(App.Vector(25, -6, 0), App.Vector(25, -5.5, 0)), False)
sketch16.addGeometry(Part.LineSegment(App.Vector(25, -5.5, 0), App.Vector(26.4, -5.5, 0)), False)
sketch16.addConstraint(Sketcher.Constraint("Coincident", 0, 1, 1, 1))
sketch16.addConstraint(Sketcher.Constraint("Coincident", 1, 2, 2, 1))
sketch16.addConstraint(Sketcher.Constraint("Coincident", 2, 2, 3, 1))
sketch16.addConstraint(Sketcher.Constraint("Coincident", 3, 2, 0, 2))
sketch16.addConstraint(Sketcher.Constraint("Horizontal", 1))
sketch16.addConstraint(Sketcher.Constraint("Vertical", 2))
sketch16.addConstraint(Sketcher.Constraint("Horizontal", 3))
sketch16.addConstraint(Sketcher.Constraint("Radius", 0, Q("1 mm")))
sketch16.addConstraint(Sketcher.Constraint("DistanceY", 2, 1, 2, 2, Q("0.5 mm")))
sketch16.addConstraint(Sketcher.Constraint("DistanceY", 0, 3, -1, 1, Q("6 mm")))
sketch16.addConstraint(Sketcher.Constraint("DistanceY", 0, 1, -1, 1, Q("6 mm")))
sketch16.addConstraint(Sketcher.Constraint("DistanceX", -1, 1, 0, 3, Q("25.55 mm")))
sketch16.addConstraint(Sketcher.Constraint("DistanceX", 3, 1, 3, 2, Q("1.368468 mm")))
sketch16.setExpression("Constraints[7]", "Params.sketch16_radius")
sketch16.setExpression("Constraints[8]", "Params.sketch16_height")
pocket11 = body.newObject("PartDesign::Pocket", "Pocket010")
pocket11.Profile = sketch16
pocket11.Type = "UpToFirst"
pocket11.Reversed = True

# Sketch on XZ plane
sketch17 = body.newObject("Sketcher::SketchObject", "Sketch016")
sketch17.AttachmentSupport = (doc.getObject("XZ_Plane"), [""])
sketch17.MapMode = "FlatFace"
sketch17.AttachmentOffset = App.Placement(App.Vector(0, 0, -21.8), App.Rotation())
sketch17.addGeometry(Part.LineSegment(App.Vector(25.05, -5.5, 0), App.Vector(25.05, -6, 0)), False)
sketch17.addGeometry(Part.LineSegment(App.Vector(25.05, -6, 0), App.Vector(24.55, -6, 0)), False)
sketch17.addGeometry(Part.ArcOfCircle(Part.Circle(App.Vector(25.55, -6, 0), App.Vector(0, 0, 1), 1), math.radians(30), math.radians(180)), False)
sketch17.addGeometry(Part.LineSegment(App.Vector(26.42, -5.5, 0), App.Vector(25.05, -5.5, 0)), False)
sketch17.addConstraint(Sketcher.Constraint("Coincident", 0, 2, 1, 1))
sketch17.addConstraint(Sketcher.Constraint("Coincident", 1, 2, 2, 2))
sketch17.addConstraint(Sketcher.Constraint("Coincident", 2, 1, 3, 1))
sketch17.addConstraint(Sketcher.Constraint("Coincident", 3, 2, 0, 1))
sketch17.addConstraint(Sketcher.Constraint("Vertical", 0))
sketch17.addConstraint(Sketcher.Constraint("Horizontal", 1))
sketch17.addConstraint(Sketcher.Constraint("Horizontal", 3))
sketch17.addConstraint(Sketcher.Constraint("Horizontal", 2, 3, 0, 2))
sketch17.addConstraint(Sketcher.Constraint("Radius", 2, Q("1 mm")))
sketch17.addConstraint(Sketcher.Constraint("DistanceY", 0, 2, 0, 1, Q("0.5 mm")))
sketch17.addConstraint(Sketcher.Constraint("DistanceY", 2, 3, -1, 1, Q("6 mm")))
sketch17.addConstraint(Sketcher.Constraint("DistanceX", -1, 1, 2, 3, Q("25.55 mm")))
sketch17.addConstraint(Sketcher.Constraint("DistanceX", 3, 2, 3, 1, Q("1.368468 mm")))
sketch17.setExpression("Constraints[8]", "Params.sketch17_radius")
sketch17.setExpression("Constraints[9]", "Params.sketch17_height")
pocket12 = body.newObject("PartDesign::Pocket", "Pocket011")
pocket12.Profile = sketch17
pocket12.Type = "UpToFirst"
pocket12.Reversed = True

# Sketch on XZ plane
sketch18 = body.newObject("Sketcher::SketchObject", "Sketch017")
sketch18.AttachmentSupport = (doc.getObject("XZ_Plane"), [""])
sketch18.MapMode = "FlatFace"
sketch18.AttachmentOffset = App.Placement(App.Vector(0, 0, -21.8), App.Rotation())
sketch18.addGeometry(Part.ArcOfCircle(Part.Circle(App.Vector(25.5, -6, 0), App.Vector(0, 0, 1), 1), math.radians(0), math.radians(30)), False)
sketch18.addGeometry(Part.LineSegment(App.Vector(26.6, -6, 0), App.Vector(25, -6, 0)), False)
sketch18.addGeometry(Part.LineSegment(App.Vector(25, -6, 0), App.Vector(25, -5.5, 0)), False)
sketch18.addGeometry(Part.LineSegment(App.Vector(25, -5.5, 0), App.Vector(26.4, -5.5, 0)), False)
sketch18.addConstraint(Sketcher.Constraint("Coincident", 0, 1, 1, 1))
sketch18.addConstraint(Sketcher.Constraint("Coincident", 1, 2, 2, 1))
sketch18.addConstraint(Sketcher.Constraint("Coincident", 2, 2, 3, 1))
sketch18.addConstraint(Sketcher.Constraint("Coincident", 3, 2, 0, 2))
sketch18.addConstraint(Sketcher.Constraint("Horizontal", 1))
sketch18.addConstraint(Sketcher.Constraint("Vertical", 2))
sketch18.addConstraint(Sketcher.Constraint("Horizontal", 3))
sketch18.addConstraint(Sketcher.Constraint("Radius", 0, Q("1 mm")))
sketch18.addConstraint(Sketcher.Constraint("DistanceY", 2, 1, 2, 2, Q("0.5 mm")))
sketch18.addConstraint(Sketcher.Constraint("DistanceY", 0, 3, -1, 1, Q("6 mm")))
sketch18.addConstraint(Sketcher.Constraint("DistanceY", 0, 1, -1, 1, Q("6 mm")))
sketch18.addConstraint(Sketcher.Constraint("DistanceX", -1, 1, 0, 3, Q("25.55 mm")))
sketch18.addConstraint(Sketcher.Constraint("DistanceX", 3, 1, 3, 2, Q("1.368468 mm")))
sketch18.setExpression("Constraints[7]", "Params.sketch18_radius")
sketch18.setExpression("Constraints[8]", "Params.sketch18_height")
pocket13 = body.newObject("PartDesign::Pocket", "Pocket012")
pocket13.Profile = sketch18
pocket13.setExpression("Length", "Params.pocket13_length")
pocket13.Reversed = True

# Sketch on XZ plane
sketch19 = body.newObject("Sketcher::SketchObject", "Sketch018")
sketch19.AttachmentSupport = (doc.getObject("XZ_Plane"), [""])
sketch19.MapMode = "FlatFace"
sketch19.AttachmentOffset = App.Placement(App.Vector(0, 0, -21.8), App.Rotation())
sketch19.addGeometry(Part.LineSegment(App.Vector(25.05, -5.5, 0), App.Vector(25.05, -6, 0)), False)
sketch19.addGeometry(Part.LineSegment(App.Vector(25.05, -6, 0), App.Vector(24.55, -6, 0)), False)
sketch19.addGeometry(Part.ArcOfCircle(Part.Circle(App.Vector(25.55, -6, 0), App.Vector(0, 0, 1), 1), math.radians(30), math.radians(180)), False)
sketch19.addGeometry(Part.LineSegment(App.Vector(26.42, -5.5, 0), App.Vector(25.05, -5.5, 0)), False)
sketch19.addConstraint(Sketcher.Constraint("Coincident", 0, 2, 1, 1))
sketch19.addConstraint(Sketcher.Constraint("Coincident", 1, 2, 2, 2))
sketch19.addConstraint(Sketcher.Constraint("Coincident", 2, 1, 3, 1))
sketch19.addConstraint(Sketcher.Constraint("Coincident", 3, 2, 0, 1))
sketch19.addConstraint(Sketcher.Constraint("Vertical", 0))
sketch19.addConstraint(Sketcher.Constraint("Horizontal", 1))
sketch19.addConstraint(Sketcher.Constraint("Horizontal", 3))
sketch19.addConstraint(Sketcher.Constraint("Horizontal", 2, 3, 0, 2))
sketch19.addConstraint(Sketcher.Constraint("Radius", 2, Q("1 mm")))
sketch19.addConstraint(Sketcher.Constraint("DistanceY", 0, 2, 0, 1, Q("0.5 mm")))
sketch19.addConstraint(Sketcher.Constraint("DistanceY", 2, 3, -1, 1, Q("6 mm")))
sketch19.addConstraint(Sketcher.Constraint("DistanceX", -1, 1, 2, 3, Q("25.55 mm")))
sketch19.addConstraint(Sketcher.Constraint("DistanceX", 3, 2, 3, 1, Q("1.368468 mm")))
sketch19.setExpression("Constraints[8]", "Params.sketch19_radius")
sketch19.setExpression("Constraints[9]", "Params.sketch19_height")
pocket14 = body.newObject("PartDesign::Pocket", "Pocket013")
pocket14.Profile = sketch19
pocket14.setExpression("Length", "Params.pocket14_length")
pocket14.Reversed = True

# Sketch on XZ plane
sketch20 = body.newObject("Sketcher::SketchObject", "Sketch019")
sketch20.AttachmentSupport = (doc.getObject("XZ_Plane"), [""])
sketch20.MapMode = "FlatFace"
sketch20.AttachmentOffset = App.Placement(App.Vector(0, 0, -21.8), App.Rotation())
sketch20.addGeometry(Part.LineSegment(App.Vector(25, -6, 0), App.Vector(26.6, -6, 0)), False)
sketch20.addGeometry(Part.ArcOfCircle(Part.Circle(App.Vector(25.5, -6, 0), App.Vector(0, 0, 1), 1), math.radians(-30), math.radians(0)), False)
sketch20.addGeometry(Part.LineSegment(App.Vector(26.4, -6.5, 0), App.Vector(25, -6.5, 0)), False)
sketch20.addGeometry(Part.LineSegment(App.Vector(25, -6.5, 0), App.Vector(25, -6, 0)), False)
sketch20.addConstraint(Sketcher.Constraint("Coincident", 0, 2, 1, 2))
sketch20.addConstraint(Sketcher.Constraint("Coincident", 1, 1, 2, 1))
sketch20.addConstraint(Sketcher.Constraint("Coincident", 2, 2, 3, 1))
sketch20.addConstraint(Sketcher.Constraint("Coincident", 3, 2, 0, 1))
sketch20.addConstraint(Sketcher.Constraint("Horizontal", 0))
sketch20.addConstraint(Sketcher.Constraint("Horizontal", 2))
sketch20.addConstraint(Sketcher.Constraint("Vertical", 3))
sketch20.addConstraint(Sketcher.Constraint("Horizontal", 1, 3, 0, 2))
sketch20.addConstraint(Sketcher.Constraint("Radius", 1, Q("1 mm")))
sketch20.addConstraint(Sketcher.Constraint("DistanceY", 3, 1, 3, 2, Q("0.5 mm")))
sketch20.addConstraint(Sketcher.Constraint("DistanceY", 1, 3, -1, 1, Q("6 mm")))
sketch20.addConstraint(Sketcher.Constraint("DistanceX", -1, 1, 1, 3, Q("25.55 mm")))
sketch20.addConstraint(Sketcher.Constraint("DistanceX", 2, 2, 2, 1, Q("1.368468 mm")))
sketch20.setExpression("Constraints[8]", "Params.sketch20_radius")
sketch20.setExpression("Constraints[9]", "Params.sketch20_height")
pocket15 = body.newObject("PartDesign::Pocket", "Pocket014")
pocket15.Profile = sketch20
pocket15.Type = "UpToFirst"
pocket15.Reversed = True

# Sketch on XZ plane
sketch21 = body.newObject("Sketcher::SketchObject", "Sketch020")
sketch21.AttachmentSupport = (doc.getObject("XZ_Plane"), [""])
sketch21.MapMode = "FlatFace"
sketch21.AttachmentOffset = App.Placement(App.Vector(0, 0, -21.8), App.Rotation())
sketch21.addGeometry(Part.LineSegment(App.Vector(24.55, -6, 0), App.Vector(25.05, -6, 0)), False)
sketch21.addGeometry(Part.LineSegment(App.Vector(25.05, -6, 0), App.Vector(25.05, -6.5, 0)), False)
sketch21.addGeometry(Part.LineSegment(App.Vector(25.05, -6.5, 0), App.Vector(26.42, -6.5, 0)), False)
sketch21.addGeometry(Part.ArcOfCircle(Part.Circle(App.Vector(25.55, -6, 0), App.Vector(0, 0, 1), 1), math.radians(180), math.radians(330)), False)
sketch21.addConstraint(Sketcher.Constraint("Coincident", 0, 2, 1, 1))
sketch21.addConstraint(Sketcher.Constraint("Coincident", 1, 2, 2, 1))
sketch21.addConstraint(Sketcher.Constraint("Coincident", 2, 2, 3, 2))
sketch21.addConstraint(Sketcher.Constraint("Coincident", 3, 1, 0, 1))
sketch21.addConstraint(Sketcher.Constraint("Horizontal", 0))
sketch21.addConstraint(Sketcher.Constraint("Vertical", 1))
sketch21.addConstraint(Sketcher.Constraint("Horizontal", 2))
sketch21.addConstraint(Sketcher.Constraint("Horizontal", 3, 3, 0, 2))
sketch21.addConstraint(Sketcher.Constraint("Radius", 3, Q("1 mm")))
sketch21.addConstraint(Sketcher.Constraint("DistanceY", 1, 2, 1, 1, Q("0.5 mm")))
sketch21.addConstraint(Sketcher.Constraint("DistanceY", 3, 3, -1, 1, Q("6 mm")))
sketch21.addConstraint(Sketcher.Constraint("DistanceX", -1, 1, 3, 3, Q("25.55 mm")))
sketch21.addConstraint(Sketcher.Constraint("DistanceX", 2, 1, 2, 2, Q("1.368468 mm")))
sketch21.setExpression("Constraints[8]", "Params.sketch21_radius")
sketch21.setExpression("Constraints[9]", "Params.sketch21_height")
pocket16 = body.newObject("PartDesign::Pocket", "Pocket015")
pocket16.Profile = sketch21
pocket16.Type = "UpToFirst"
pocket16.Reversed = True

# Sketch on XZ plane
sketch22 = body.newObject("Sketcher::SketchObject", "Sketch021")
sketch22.AttachmentSupport = (doc.getObject("XZ_Plane"), [""])
sketch22.MapMode = "FlatFace"
sketch22.AttachmentOffset = App.Placement(App.Vector(0, 0, -21.8), App.Rotation())
sketch22.addGeometry(Part.LineSegment(App.Vector(25, -6, 0), App.Vector(26.6, -6, 0)), False)
sketch22.addGeometry(Part.ArcOfCircle(Part.Circle(App.Vector(25.5, -6, 0), App.Vector(0, 0, 1), 1), math.radians(-30), math.radians(0)), False)
sketch22.addGeometry(Part.LineSegment(App.Vector(26.4, -6.5, 0), App.Vector(25, -6.5, 0)), False)
sketch22.addGeometry(Part.LineSegment(App.Vector(25, -6.5, 0), App.Vector(25, -6, 0)), False)
sketch22.addConstraint(Sketcher.Constraint("Coincident", 0, 2, 1, 2))
sketch22.addConstraint(Sketcher.Constraint("Coincident", 1, 1, 2, 1))
sketch22.addConstraint(Sketcher.Constraint("Coincident", 2, 2, 3, 1))
sketch22.addConstraint(Sketcher.Constraint("Coincident", 3, 2, 0, 1))
sketch22.addConstraint(Sketcher.Constraint("Horizontal", 0))
sketch22.addConstraint(Sketcher.Constraint("Horizontal", 2))
sketch22.addConstraint(Sketcher.Constraint("Vertical", 3))
sketch22.addConstraint(Sketcher.Constraint("Horizontal", 1, 3, 0, 2))
sketch22.addConstraint(Sketcher.Constraint("Radius", 1, Q("1 mm")))
sketch22.addConstraint(Sketcher.Constraint("DistanceY", 3, 1, 3, 2, Q("0.5 mm")))
sketch22.addConstraint(Sketcher.Constraint("DistanceY", 1, 3, -1, 1, Q("6 mm")))
sketch22.addConstraint(Sketcher.Constraint("DistanceX", -1, 1, 1, 3, Q("25.55 mm")))
sketch22.addConstraint(Sketcher.Constraint("DistanceX", 2, 2, 2, 1, Q("1.368468 mm")))
sketch22.setExpression("Constraints[8]", "Params.sketch22_radius")
sketch22.setExpression("Constraints[9]", "Params.sketch22_height")
pocket17 = body.newObject("PartDesign::Pocket", "Pocket016")
pocket17.Profile = sketch22
pocket17.setExpression("Length", "Params.pocket17_length")
pocket17.Reversed = True

# Sketch on XZ plane
sketch23 = body.newObject("Sketcher::SketchObject", "Sketch022")
sketch23.AttachmentSupport = (doc.getObject("XZ_Plane"), [""])
sketch23.MapMode = "FlatFace"
sketch23.AttachmentOffset = App.Placement(App.Vector(0, 0, -21.8), App.Rotation())
sketch23.addGeometry(Part.LineSegment(App.Vector(24.55, -6, 0), App.Vector(25.05, -6, 0)), False)
sketch23.addGeometry(Part.LineSegment(App.Vector(25.05, -6, 0), App.Vector(25.05, -6.5, 0)), False)
sketch23.addGeometry(Part.LineSegment(App.Vector(25.05, -6.5, 0), App.Vector(26.42, -6.5, 0)), False)
sketch23.addGeometry(Part.ArcOfCircle(Part.Circle(App.Vector(25.55, -6, 0), App.Vector(0, 0, 1), 1), math.radians(180), math.radians(330)), False)
sketch23.addConstraint(Sketcher.Constraint("Coincident", 0, 2, 1, 1))
sketch23.addConstraint(Sketcher.Constraint("Coincident", 1, 2, 2, 1))
sketch23.addConstraint(Sketcher.Constraint("Coincident", 2, 2, 3, 2))
sketch23.addConstraint(Sketcher.Constraint("Coincident", 3, 1, 0, 1))
sketch23.addConstraint(Sketcher.Constraint("Horizontal", 0))
sketch23.addConstraint(Sketcher.Constraint("Vertical", 1))
sketch23.addConstraint(Sketcher.Constraint("Horizontal", 2))
sketch23.addConstraint(Sketcher.Constraint("Horizontal", 3, 3, 0, 2))
sketch23.addConstraint(Sketcher.Constraint("Radius", 3, Q("1 mm")))
sketch23.addConstraint(Sketcher.Constraint("DistanceY", 1, 2, 1, 1, Q("0.5 mm")))
sketch23.addConstraint(Sketcher.Constraint("DistanceY", 3, 3, -1, 1, Q("6 mm")))
sketch23.addConstraint(Sketcher.Constraint("DistanceX", -1, 1, 3, 3, Q("25.55 mm")))
sketch23.addConstraint(Sketcher.Constraint("DistanceX", 2, 1, 2, 2, Q("1.368468 mm")))
sketch23.setExpression("Constraints[8]", "Params.sketch23_radius")
sketch23.setExpression("Constraints[9]", "Params.sketch23_height")
pocket18 = body.newObject("PartDesign::Pocket", "Pocket017")
pocket18.Profile = sketch23
pocket18.setExpression("Length", "Params.pocket18_length")
pocket18.Reversed = True

# Sketch on XZ plane
sketch24 = body.newObject("Sketcher::SketchObject", "Sketch023")
sketch24.AttachmentSupport = (doc.getObject("XZ_Plane"), [""])
sketch24.MapMode = "FlatFace"
sketch24.AttachmentOffset = App.Placement(App.Vector(0, 0, -21.8), App.Rotation())
sketch24.addGeometry(Part.LineSegment(App.Vector(26.6, -6, 0), App.Vector(27.1, -6, 0)), False)
sketch24.addGeometry(Part.LineSegment(App.Vector(27.1, -6, 0), App.Vector(27.1, -6.5, 0)), False)
sketch24.addGeometry(Part.LineSegment(App.Vector(27.1, -6.5, 0), App.Vector(26.4, -6.5, 0)), False)
sketch24.addGeometry(Part.ArcOfCircle(Part.Circle(App.Vector(25.5, -6, 0), App.Vector(0, 0, 1), 1), math.radians(-30), math.radians(0)), False)
sketch24.addConstraint(Sketcher.Constraint("Coincident", 0, 2, 1, 1))
sketch24.addConstraint(Sketcher.Constraint("Coincident", 1, 2, 2, 1))
sketch24.addConstraint(Sketcher.Constraint("Coincident", 2, 2, 3, 1))
sketch24.addConstraint(Sketcher.Constraint("Coincident", 3, 2, 0, 1))
sketch24.addConstraint(Sketcher.Constraint("Horizontal", 0))
sketch24.addConstraint(Sketcher.Constraint("Vertical", 1))
sketch24.addConstraint(Sketcher.Constraint("Horizontal", 2))
sketch24.addConstraint(Sketcher.Constraint("Horizontal", 3, 3, 0, 2))
sketch24.addConstraint(Sketcher.Constraint("Equal", 0, 1))
sketch24.addConstraint(Sketcher.Constraint("Radius", 3, Q("1 mm")))
sketch24.addConstraint(Sketcher.Constraint("DistanceX", 0, 1, 0, 2, Q("0.5 mm")))
sketch24.addConstraint(Sketcher.Constraint("DistanceY", 3, 3, -1, 1, Q("6 mm")))
sketch24.addConstraint(Sketcher.Constraint("DistanceX", -1, 1, 3, 3, Q("25.55 mm")))
sketch24.setExpression("Constraints[9]", "Params.sketch24_radius")
sketch24.setExpression("Constraints[10]", "Params.sketch24_width")
pocket19 = body.newObject("PartDesign::Pocket", "Pocket018")
pocket19.Profile = sketch24
pocket19.Type = "UpToFirst"
pocket19.Reversed = True

# Sketch on XZ plane
sketch25 = body.newObject("Sketcher::SketchObject", "Sketch024")
sketch25.AttachmentSupport = (doc.getObject("XZ_Plane"), [""])
sketch25.MapMode = "FlatFace"
sketch25.AttachmentOffset = App.Placement(App.Vector(0, 0, -21.8), App.Rotation())
sketch25.addGeometry(Part.LineSegment(App.Vector(27.1, -5.5, 0), App.Vector(27.1, -6, 0)), False)
sketch25.addGeometry(Part.LineSegment(App.Vector(27.1, -6, 0), App.Vector(26.6, -6, 0)), False)
sketch25.addGeometry(Part.ArcOfCircle(Part.Circle(App.Vector(25.5, -6, 0), App.Vector(0, 0, 1), 1), math.radians(0), math.radians(30)), False)
sketch25.addGeometry(Part.LineSegment(App.Vector(26.4, -5.5, 0), App.Vector(27.1, -5.5, 0)), False)
sketch25.addConstraint(Sketcher.Constraint("Coincident", 0, 2, 1, 1))
sketch25.addConstraint(Sketcher.Constraint("Coincident", 1, 2, 2, 1))
sketch25.addConstraint(Sketcher.Constraint("Coincident", 2, 2, 3, 1))
sketch25.addConstraint(Sketcher.Constraint("Coincident", 3, 2, 0, 1))
sketch25.addConstraint(Sketcher.Constraint("Vertical", 0))
sketch25.addConstraint(Sketcher.Constraint("Horizontal", 1))
sketch25.addConstraint(Sketcher.Constraint("Horizontal", 3))
sketch25.addConstraint(Sketcher.Constraint("Horizontal", 2, 3, 0, 2))
sketch25.addConstraint(Sketcher.Constraint("Equal", 1, 0))
sketch25.addConstraint(Sketcher.Constraint("Radius", 2, Q("1 mm")))
sketch25.addConstraint(Sketcher.Constraint("DistanceX", 1, 2, 1, 1, Q("0.5 mm")))
sketch25.addConstraint(Sketcher.Constraint("DistanceY", 2, 3, -1, 1, Q("6 mm")))
sketch25.addConstraint(Sketcher.Constraint("DistanceX", -1, 1, 2, 3, Q("25.55 mm")))
sketch25.setExpression("Constraints[9]", "Params.sketch25_radius")
sketch25.setExpression("Constraints[10]", "Params.sketch25_width")
pocket20 = body.newObject("PartDesign::Pocket", "Pocket019")
pocket20.Profile = sketch25
pocket20.Type = "UpToFirst"
pocket20.Reversed = True

doc.recompute()
